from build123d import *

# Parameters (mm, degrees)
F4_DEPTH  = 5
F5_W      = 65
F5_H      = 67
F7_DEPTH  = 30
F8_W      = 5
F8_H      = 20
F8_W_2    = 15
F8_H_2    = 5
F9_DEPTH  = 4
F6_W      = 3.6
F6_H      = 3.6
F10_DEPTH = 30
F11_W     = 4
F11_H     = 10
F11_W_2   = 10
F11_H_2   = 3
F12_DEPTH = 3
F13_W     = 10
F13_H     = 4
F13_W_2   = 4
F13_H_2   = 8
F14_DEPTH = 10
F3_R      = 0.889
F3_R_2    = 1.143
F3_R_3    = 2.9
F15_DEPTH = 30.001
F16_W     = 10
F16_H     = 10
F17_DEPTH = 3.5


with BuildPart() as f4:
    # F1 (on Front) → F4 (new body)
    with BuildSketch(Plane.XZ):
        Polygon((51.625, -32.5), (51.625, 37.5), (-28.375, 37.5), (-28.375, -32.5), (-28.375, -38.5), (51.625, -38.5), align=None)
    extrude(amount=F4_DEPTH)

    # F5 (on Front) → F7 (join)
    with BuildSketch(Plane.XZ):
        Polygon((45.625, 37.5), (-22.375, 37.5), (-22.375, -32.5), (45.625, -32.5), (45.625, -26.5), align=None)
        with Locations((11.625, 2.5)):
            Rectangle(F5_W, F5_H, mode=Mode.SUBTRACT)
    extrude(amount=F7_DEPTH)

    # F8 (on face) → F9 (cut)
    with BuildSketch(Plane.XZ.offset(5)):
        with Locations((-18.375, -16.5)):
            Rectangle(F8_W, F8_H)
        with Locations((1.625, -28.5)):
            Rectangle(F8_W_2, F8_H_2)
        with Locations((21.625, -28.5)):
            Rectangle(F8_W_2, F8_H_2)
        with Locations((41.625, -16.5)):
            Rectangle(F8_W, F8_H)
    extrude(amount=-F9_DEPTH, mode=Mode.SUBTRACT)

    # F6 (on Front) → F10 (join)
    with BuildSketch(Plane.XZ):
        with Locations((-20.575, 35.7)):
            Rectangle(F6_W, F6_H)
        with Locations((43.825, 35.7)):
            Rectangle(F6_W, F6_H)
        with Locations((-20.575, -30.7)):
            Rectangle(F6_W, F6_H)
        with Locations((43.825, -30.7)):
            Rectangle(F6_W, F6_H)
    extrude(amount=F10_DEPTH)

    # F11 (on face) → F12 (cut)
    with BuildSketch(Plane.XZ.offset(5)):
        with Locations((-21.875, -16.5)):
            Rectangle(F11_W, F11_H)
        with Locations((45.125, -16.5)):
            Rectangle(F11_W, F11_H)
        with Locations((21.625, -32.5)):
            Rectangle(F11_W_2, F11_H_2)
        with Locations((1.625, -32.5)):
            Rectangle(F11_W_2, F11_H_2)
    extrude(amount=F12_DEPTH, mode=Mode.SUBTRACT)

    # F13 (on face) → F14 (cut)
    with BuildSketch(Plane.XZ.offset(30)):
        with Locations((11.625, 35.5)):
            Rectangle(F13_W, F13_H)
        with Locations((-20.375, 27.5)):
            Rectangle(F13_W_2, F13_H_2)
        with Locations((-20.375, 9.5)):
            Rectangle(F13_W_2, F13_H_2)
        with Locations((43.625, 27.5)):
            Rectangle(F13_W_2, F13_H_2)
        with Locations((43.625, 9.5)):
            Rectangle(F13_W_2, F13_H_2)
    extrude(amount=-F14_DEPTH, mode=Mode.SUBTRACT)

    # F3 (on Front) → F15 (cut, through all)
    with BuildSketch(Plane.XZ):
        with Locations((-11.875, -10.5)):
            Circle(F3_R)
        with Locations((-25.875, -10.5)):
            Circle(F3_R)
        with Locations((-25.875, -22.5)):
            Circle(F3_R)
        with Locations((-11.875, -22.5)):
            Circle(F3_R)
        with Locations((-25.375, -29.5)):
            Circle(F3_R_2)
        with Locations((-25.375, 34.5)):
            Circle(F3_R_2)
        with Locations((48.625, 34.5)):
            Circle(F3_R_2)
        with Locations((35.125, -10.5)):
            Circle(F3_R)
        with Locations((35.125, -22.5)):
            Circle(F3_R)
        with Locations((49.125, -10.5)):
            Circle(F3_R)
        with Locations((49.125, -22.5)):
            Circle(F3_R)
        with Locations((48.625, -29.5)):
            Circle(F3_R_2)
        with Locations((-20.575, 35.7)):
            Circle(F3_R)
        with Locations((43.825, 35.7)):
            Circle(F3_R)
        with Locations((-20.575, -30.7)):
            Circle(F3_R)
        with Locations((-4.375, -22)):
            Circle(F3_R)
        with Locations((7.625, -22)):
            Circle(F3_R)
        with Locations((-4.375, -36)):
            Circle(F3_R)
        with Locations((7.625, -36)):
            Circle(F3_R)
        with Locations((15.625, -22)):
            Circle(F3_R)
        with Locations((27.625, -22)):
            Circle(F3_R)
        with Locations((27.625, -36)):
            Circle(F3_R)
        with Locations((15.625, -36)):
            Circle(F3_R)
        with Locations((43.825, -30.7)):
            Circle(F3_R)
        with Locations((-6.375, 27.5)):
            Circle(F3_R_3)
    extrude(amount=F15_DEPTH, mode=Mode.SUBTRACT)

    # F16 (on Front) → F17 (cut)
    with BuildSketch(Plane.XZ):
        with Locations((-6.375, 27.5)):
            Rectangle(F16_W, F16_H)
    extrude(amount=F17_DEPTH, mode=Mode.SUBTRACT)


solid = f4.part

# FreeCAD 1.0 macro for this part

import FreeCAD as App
import Part
import Sketcher

V = App.Vector
Q = App.Units.Quantity

doc = App.newDocument("Part")
params = doc.addObject("Spreadsheet::Sheet", "Params")
for row, (alias, value) in enumerate([
    ("sketch1_width", "80 mm"),
    ("sketch1_height", "76 mm"),
    ("pad1_length", "5 mm"),
    ("sketch2_width", "68 mm"),
    ("sketch2_width2", "65 mm"),
    ("sketch2_height", "70 mm"),
    ("sketch2_height2", "67 mm"),
    ("pad2_length", "30 mm"),
    ("sketch3_width", "5 mm"),
    ("sketch3_width2", "15 mm"),
    ("sketch3_height", "20 mm"),
    ("pocket1_length", "4 mm"),
    ("sketch4_width", "3.6 mm"),
    ("pad3_length", "30 mm"),
    ("sketch5_width", "4 mm"),
    ("sketch5_width2", "10 mm"),
    ("sketch5_height", "3 mm"),
    ("pocket2_length", "3 mm"),
    ("sketch6_width", "10 mm"),
    ("sketch6_width2", "4 mm"),
    ("sketch6_height", "8 mm"),
    ("pocket3_length", "10 mm"),
    ("sketch7_diameter", "5.8 mm"),
    ("sketch8_width", "10 mm"),
    ("pocket5_length", "3.5 mm"),
], start=1):
    params.set(f"A{row}", alias)
    params.set(f"B{row}", "=" + value)
    params.setAlias(f"B{row}", alias)

body = doc.addObject("PartDesign::Body", "Body")

# Sketch on XZ plane
sketch1 = body.newObject("Sketcher::SketchObject", "Sketch")
sketch1.AttachmentSupport = (doc.getObject("XZ_Plane"), [""])
sketch1.MapMode = "FlatFace"
sketch1.addGeometry(Part.LineSegment(V(52, 38, 0), V(-28, 38, 0)), False)
sketch1.addGeometry(Part.LineSegment(V(-28, 38, 0), V(-28, -38, 0)), False)
sketch1.addGeometry(Part.LineSegment(V(-28, -38, 0), V(52, -38, 0)), False)
sketch1.addGeometry(Part.LineSegment(V(52, -38, 0), V(52, 38, 0)), False)
sketch1.addConstraint(Sketcher.Constraint("Coincident", 0, 2, 1, 1))
sketch1.addConstraint(Sketcher.Constraint("Coincident", 1, 2, 2, 1))
sketch1.addConstraint(Sketcher.Constraint("Coincident", 2, 2, 3, 1))
sketch1.addConstraint(Sketcher.Constraint("Coincident", 3, 2, 0, 1))
sketch1.addConstraint(Sketcher.Constraint("Horizontal", 0))
sketch1.addConstraint(Sketcher.Constraint("Vertical", 1))
sketch1.addConstraint(Sketcher.Constraint("Horizontal", 2))
sketch1.addConstraint(Sketcher.Constraint("Vertical", 3))
sketch1.addConstraint(Sketcher.Constraint("DistanceX", 0, 2, 0, 1, Q("80 mm")))
sketch1.addConstraint(Sketcher.Constraint("DistanceY", 1, 2, 1, 1, Q("76 mm")))
sketch1.addConstraint(Sketcher.Constraint("DistanceY", -1, 1, 0, 2, Q("37.5 mm")))
sketch1.addConstraint(Sketcher.Constraint("DistanceX", 0, 2, -1, 1, Q("28.375 mm")))
sketch1.setExpression("Constraints[8]", "Params.sketch1_width")
sketch1.setExpression("Constraints[9]", "Params.sketch1_height")
pad1 = body.newObject("PartDesign::Pad", "Pad")
pad1.Profile = sketch1
pad1.setExpression("Length", "Params.pad1_length")

# Sketch on XZ plane
sketch2 = body.newObject("Sketcher::SketchObject", "Sketch001")
sketch2.AttachmentSupport = (doc.getObject("XZ_Plane"), [""])
sketch2.MapMode = "FlatFace"
sketch2.addGeometry(Part.LineSegment(V(46, 38, 0), V(-22, 38, 0)), False)
sketch2.addGeometry(Part.LineSegment(V(-22, 38, 0), V(-22, -32, 0)), False)
sketch2.addGeometry(Part.LineSegment(V(-22, -32, 0), V(46, -32, 0)), False)
sketch2.addGeometry(Part.LineSegment(V(46, -32, 0), V(46, 38, 0)), False)
sketch2.addGeometry(Part.LineSegment(V(44, -31, 0), V(-21, -31, 0)), False)
sketch2.addGeometry(Part.LineSegment(V(-21, -31, 0), V(-21, 36, 0)), False)
sketch2.addGeometry(Part.LineSegment(V(-21, 36, 0), V(44, 36, 0)), False)
sketch2.addGeometry(Part.LineSegment(V(44, 36, 0), V(44, -31, 0)), False)
sketch2.addConstraint(Sketcher.Constraint("Coincident", 0, 2, 1, 1))
sketch2.addConstraint(Sketcher.Constraint("Coincident", 1, 2, 2, 1))
sketch2.addConstraint(Sketcher.Constraint("Coincident", 2, 2, 3, 1))
sketch2.addConstraint(Sketcher.Constraint("Coincident", 3, 2, 0, 1))
sketch2.addConstraint(Sketcher.Constraint("Coincident", 4, 2, 5, 1))
sketch2.addConstraint(Sketcher.Constraint("Coincident", 5, 2, 6, 1))
sketch2.addConstraint(Sketcher.Constraint("Coincident", 6, 2, 7, 1))
sketch2.addConstraint(Sketcher.Constraint("Coincident", 7, 2, 4, 1))
sketch2.addConstraint(Sketcher.Constraint("Horizontal", 0))
sketch2.addConstraint(Sketcher.Constraint("Vertical", 1))
sketch2.addConstraint(Sketcher.Constraint("Horizontal", 2))
sketch2.addConstraint(Sketcher.Constraint("Vertical", 3))
sketch2.addConstraint(Sketcher.Constraint("Horizontal", 4))
sketch2.addConstraint(Sketcher.Constraint("Vertical", 5))
sketch2.addConstraint(Sketcher.Constraint("Horizontal", 6))
sketch2.addConstraint(Sketcher.Constraint("Vertical", 7))
sketch2.addConstraint(Sketcher.Constraint("DistanceX", 0, 2, 0, 1, Q("68 mm")))
sketch2.addConstraint(Sketcher.Constraint("DistanceX", 4, 2, 4, 1, Q("65 mm")))
sketch2.addConstraint(Sketcher.Constraint("DistanceY", 1, 2, 1, 1, Q("70 mm")))
sketch2.addConstraint(Sketcher.Constraint("DistanceY", 5, 1, 5, 2, Q("67 mm")))
sketch2.addConstraint(Sketcher.Constraint("DistanceY", 4, 2, -1, 1, Q("31 mm")))
sketch2.addConstraint(Sketcher.Constraint("DistanceY", -1, 1, 0, 2, Q("37.5 mm")))
sketch2.addConstraint(Sketcher.Constraint("DistanceX", 1, 2, 4, 2, Q("1.5 mm")))
sketch2.addConstraint(Sketcher.Constraint("DistanceX", 0, 2, -1, 1, Q("22.375 mm")))
sketch2.setExpression("Constraints[16]", "Params.sketch2_width")
sketch2.setExpression("Constraints[17]", "Params.sketch2_width2")
sketch2.setExpression("Constraints[18]", "Params.sketch2_height")
sketch2.setExpression("Constraints[19]", "Params.sketch2_height2")
pad2 = body.newObject("PartDesign::Pad", "Pad001")
pad2.Profile = sketch2
pad2.setExpression("Length", "Params.pad2_length")

# Sketch on XZ plane
sketch3 = body.newObject("Sketcher::SketchObject", "Sketch002")
sketch3.AttachmentSupport = (doc.getObject("XZ_Plane"), [""])
sketch3.MapMode = "FlatFace"
sketch3.AttachmentOffset = App.Placement(V(0, 0, 5), App.Rotation())
sketch3.addGeometry(Part.LineSegment(V(-21, -6, 0), V(-21, -26, 0)), False)
sketch3.addGeometry(Part.LineSegment(V(-21, -26, 0), V(-16, -26, 0)), False)
sketch3.addGeometry(Part.LineSegment(V(-16, -26, 0), V(-16, -6, 0)), False)
sketch3.addGeometry(Part.LineSegment(V(-16, -6, 0), V(-21, -6, 0)), False)
sketch3.addGeometry(Part.LineSegment(V(-6, -26, 0), V(-6, -31, 0)), False)
sketch3.addGeometry(Part.LineSegment(V(-6, -31, 0), V(9, -31, 0)), False)
sketch3.addGeometry(Part.LineSegment(V(9, -31, 0), V(9, -26, 0)), False)
sketch3.addGeometry(Part.LineSegment(V(9, -26, 0), V(-6, -26, 0)), False)
sketch3.addGeometry(Part.LineSegment(V(14, -26, 0), V(14, -31, 0)), False)
sketch3.addGeometry(Part.LineSegment(V(14, -31, 0), V(29, -31, 0)), False)
sketch3.addGeometry(Part.LineSegment(V(29, -31, 0), V(29, -26, 0)), False)
sketch3.addGeometry(Part.LineSegment(V(29, -26, 0), V(14, -26, 0)), False)
sketch3.addGeometry(Part.LineSegment(V(39, -6, 0), V(39, -26, 0)), False)
sketch3.addGeometry(Part.LineSegment(V(39, -26, 0), V(44, -26, 0)), False)
sketch3.addGeometry(Part.LineSegment(V(44, -26, 0), V(44, -6, 0)), False)
sketch3.addGeometry(Part.LineSegment(V(44, -6, 0), V(39, -6, 0)), False)
sketch3.addConstraint(Sketcher.Constraint("Coincident", 0, 2, 1, 1))
sketch3.addConstraint(Sketcher.Constraint("Coincident", 1, 2, 2, 1))
sketch3.addConstraint(Sketcher.Constraint("Coincident", 2, 2, 3, 1))
sketch3.addConstraint(Sketcher.Constraint("Coincident", 3, 2, 0, 1))
sketch3.addConstraint(Sketcher.Constraint("Coincident", 4, 2, 5, 1))
sketch3.addConstraint(Sketcher.Constraint("Coincident", 5, 2, 6, 1))
sketch3.addConstraint(Sketcher.Constraint("Coincident", 6, 2, 7, 1))
sketch3.addConstraint(Sketcher.Constraint("Coincident", 7, 2, 4, 1))
sketch3.addConstraint(Sketcher.Constraint("Coincident", 8, 2, 9, 1))
sketch3.addConstraint(Sketcher.Constraint("Coincident", 9, 2, 10, 1))
sketch3.addConstraint(Sketcher.Constraint("Coincident", 10, 2, 11, 1))
sketch3.addConstraint(Sketcher.Constraint("Coincident", 11, 2, 8, 1))
sketch3.addConstraint(Sketcher.Constraint("Coincident", 12, 2, 13, 1))
sketch3.addConstraint(Sketcher.Constraint("Coincident", 13, 2, 14, 1))
sketch3.addConstraint(Sketcher.Constraint("Coincident", 14, 2, 15, 1))
sketch3.addConstraint(Sketcher.Constraint("Coincident", 15, 2, 12, 1))
sketch3.addConstraint(Sketcher.Constraint("Vertical", 0))
sketch3.addConstraint(Sketcher.Constraint("Horizontal", 1))
sketch3.addConstraint(Sketcher.Constraint("Vertical", 2))
sketch3.addConstraint(Sketcher.Constraint("Horizontal", 3))
sketch3.addConstraint(Sketcher.Constraint("Vertical", 4))
sketch3.addConstraint(Sketcher.Constraint("Horizontal", 5))
sketch3.addConstraint(Sketcher.Constraint("Vertical", 6))
sketch3.addConstraint(Sketcher.Constraint("Horizontal", 7))
sketch3.addConstraint(Sketcher.Constraint("Vertical", 8))
sketch3.addConstraint(Sketcher.Constraint("Horizontal", 9))
sketch3.addConstraint(Sketcher.Constraint("Vertical", 10))
sketch3.addConstraint(Sketcher.Constraint("Horizontal", 11))
sketch3.addConstraint(Sketcher.Constraint("Vertical", 12))
sketch3.addConstraint(Sketcher.Constraint("Horizontal", 13))
sketch3.addConstraint(Sketcher.Constraint("Vertical", 14))
sketch3.addConstraint(Sketcher.Constraint("Horizontal", 15))
sketch3.addConstraint(Sketcher.Constraint("Horizontal", 5, 2, 8, 2))
sketch3.addConstraint(Sketcher.Constraint("Horizontal", 7, 2, 10, 2))
sketch3.addConstraint(Sketcher.Constraint("Horizontal", 1, 2, 12, 2))
sketch3.addConstraint(Sketcher.Constraint("Horizontal", 3, 2, 14, 2))
sketch3.addConstraint(Sketcher.Constraint("Equal", 7, 9))
sketch3.addConstraint(Sketcher.Constraint("Equal", 3, 13))
sketch3.addConstraint(Sketcher.Constraint("Equal", 15, 4))
sketch3.addConstraint(Sketcher.Constraint("DistanceX", 1, 1, 1, 2, Q("5 mm")))
sketch3.addConstraint(Sketcher.Constraint("DistanceX", 5, 1, 5, 2, Q("15 mm")))
sketch3.addConstraint(Sketcher.Constraint("DistanceY", 0, 2, 0, 1, Q("20 mm")))
sketch3.addConstraint(Sketcher.Constraint("DistanceY", 4, 2, -1, 1, Q("31 mm")))
sketch3.addConstraint(Sketcher.Constraint("DistanceX", 1, 2, 4, 2, Q("10 mm")))
sketch3.addConstraint(Sketcher.Constraint("DistanceX", 5, 2, 8, 2, Q("5 mm")))
sketch3.addConstraint(Sketcher.Constraint("DistanceX", 10, 2, 12, 2, Q("10 mm")))
sketch3.addConstraint(Sketcher.Constraint("DistanceY", 0, 2, -1, 1, Q("26.5 mm")))
sketch3.addConstraint(Sketcher.Constraint("DistanceX", 0, 2, -1, 1, Q("20.875 mm")))
sketch3.setExpression("Constraints[39]", "Params.sketch3_width")
sketch3.setExpression("Constraints[40]", "Params.sketch3_width2")
sketch3.setExpression("Constraints[41]", "Params.sketch3_height")
pocket1 = body.newObject("PartDesign::Pocket", "Pocket")
pocket1.Profile = sketch3
pocket1.setExpression("Length", "Params.pocket1_length")

# Sketch on XZ plane
sketch4 = body.newObject("Sketcher::SketchObject", "Sketch003")
sketch4.AttachmentSupport = (doc.getObject("XZ_Plane"), [""])
sketch4.MapMode = "FlatFace"
sketch4.addGeometry(Part.LineSegment(V(-22.4, 37.5, 0), V(-22.4, 33.9, 0)), False)
sketch4.addGeometry(Part.LineSegment(V(-22.4, 33.9, 0), V(-18.8, 33.9, 0)), False)
sketch4.addGeometry(Part.LineSegment(V(-18.8, 33.9, 0), V(-18.8, 37.5, 0)), False)
sketch4.addGeometry(Part.LineSegment(V(-18.8, 37.5, 0), V(-22.4, 37.5, 0)), False)
sketch4.addGeometry(Part.LineSegment(V(42, 37.5, 0), V(42, 33.9, 0)), False)
sketch4.addGeometry(Part.LineSegment(V(42, 33.9, 0), V(45.6, 33.9, 0)), False)
sketch4.addGeometry(Part.LineSegment(V(45.6, 33.9, 0), V(45.6, 37.5, 0)), False)
sketch4.addGeometry(Part.LineSegment(V(45.6, 37.5, 0), V(42, 37.5, 0)), False)
sketch4.addGeometry(Part.LineSegment(V(-22.4, -28.9, 0), V(-22.4, -32.5, 0)), False)
sketch4.addGeometry(Part.LineSegment(V(-22.4, -32.5, 0), V(-18.8, -32.5, 0)), False)
sketch4.addGeometry(Part.LineSegment(V(-18.8, -32.5, 0), V(-18.8, -28.9, 0)), False)
sketch4.addGeometry(Part.LineSegment(V(-18.8, -28.9, 0), V(-22.4, -28.9, 0)), False)
sketch4.addGeometry(Part.LineSegment(V(42, -28.9, 0), V(42, -32.5, 0)), False)
sketch4.addGeometry(Part.LineSegment(V(42, -32.5, 0), V(45.6, -32.5, 0)), False)
sketch4.addGeometry(Part.LineSegment(V(45.6, -32.5, 0), V(45.6, -28.9, 0)), False)
sketch4.addGeometry(Part.LineSegment(V(45.6, -28.9, 0), V(42, -28.9, 0)), False)
sketch4.addConstraint(Sketcher.Constraint("Coincident", 0, 2, 1, 1))
sketch4.addConstraint(Sketcher.Constraint("Coincident", 1, 2, 2, 1))
sketch4.addConstraint(Sketcher.Constraint("Coincident", 2, 2, 3, 1))
sketch4.addConstraint(Sketcher.Constraint("Coincident", 3, 2, 0, 1))
sketch4.addConstraint(Sketcher.Constraint("Coincident", 4, 2, 5, 1))
sketch4.addConstraint(Sketcher.Constraint("Coincident", 5, 2, 6, 1))
sketch4.addConstraint(Sketcher.Constraint("Coincident", 6, 2, 7, 1))
sketch4.addConstraint(Sketcher.Constraint("Coincident", 7, 2, 4, 1))
sketch4.addConstraint(Sketcher.Constraint("Coincident", 8, 2, 9, 1))
sketch4.addConstraint(Sketcher.Constraint("Coincident", 9, 2, 10, 1))
sketch4.addConstraint(Sketcher.Constraint("Coincident", 10, 2, 11, 1))
sketch4.addConstraint(Sketcher.Constraint("Coincident", 11, 2, 8, 1))
sketch4.addConstraint(Sketcher.Constraint("Coincident", 12, 2, 13, 1))
sketch4.addConstraint(Sketcher.Constraint("Coincident", 13, 2, 14, 1))
sketch4.addConstraint(Sketcher.Constraint("Coincident", 14, 2, 15, 1))
sketch4.addConstraint(Sketcher.Constraint("Coincident", 15, 2, 12, 1))
sketch4.addConstraint(Sketcher.Constraint("Vertical", 0))
sketch4.addConstraint(Sketcher.Constraint("Horizontal", 1))
sketch4.addConstraint(Sketcher.Constraint("Vertical", 2))
sketch4.addConstraint(Sketcher.Constraint("Horizontal", 3))
sketch4.addConstraint(Sketcher.Constraint("Vertical", 4))
sketch4.addConstraint(Sketcher.Constraint("Horizontal", 5))
sketch4.addConstraint(Sketcher.Constraint("Vertical", 6))
sketch4.addConstraint(Sketcher.Constraint("Horizontal", 7))
sketch4.addConstraint(Sketcher.Constraint("Vertical", 8))
sketch4.addConstraint(Sketcher.Constraint("Horizontal", 9))
sketch4.addConstraint(Sketcher.Constraint("Vertical", 10))
sketch4.addConstraint(Sketcher.Constraint("Horizontal", 11))
sketch4.addConstraint(Sketcher.Constraint("Vertical", 12))
sketch4.addConstraint(Sketcher.Constraint("Horizontal", 13))
sketch4.addConstraint(Sketcher.Constraint("Vertical", 14))
sketch4.addConstraint(Sketcher.Constraint("Horizontal", 15))
sketch4.addConstraint(Sketcher.Constraint("Horizontal", 1, 2, 4, 2))
sketch4.addConstraint(Sketcher.Constraint("Horizontal", 3, 2, 6, 2))
sketch4.addConstraint(Sketcher.Constraint("Horizontal", 9, 2, 12, 2))
sketch4.addConstraint(Sketcher.Constraint("Horizontal", 11, 2, 14, 2))
sketch4.addConstraint(Sketcher.Constraint("Vertical", 3, 2, 8, 2))
sketch4.addConstraint(Sketcher.Constraint("Vertical", 2, 2, 9, 2))
sketch4.addConstraint(Sketcher.Constraint("Vertical", 7, 2, 12, 2))
sketch4.addConstraint(Sketcher.Constraint("Vertical", 6, 2, 13, 2))
sketch4.addConstraint(Sketcher.Constraint("Equal", 3, 5))
sketch4.addConstraint(Sketcher.Constraint("Equal", 15, 0))
sketch4.addConstraint(Sketcher.Constraint("Equal", 6, 8))
sketch4.addConstraint(Sketcher.Constraint("DistanceX", 1, 1, 1, 2, Q("3.6 mm")))
sketch4.addConstraint(Sketcher.Constraint("DistanceX", 0, 2, 5, 2, Q("68 mm")))
sketch4.addConstraint(Sketcher.Constraint("DistanceY", 8, 2, 3, 2, Q("70 mm")))
sketch4.addConstraint(Sketcher.Constraint("DistanceY", -1, 1, 0, 2, Q("33.9 mm")))
sketch4.addConstraint(Sketcher.Constraint("DistanceX", 0, 2, -1, 1, Q("22.375 mm")))
sketch4.setExpression("Constraints[43]", "Params.sketch4_width")
pad3 = body.newObject("PartDesign::Pad", "Pad002")
pad3.Profile = sketch4
pad3.setExpression("Length", "Params.pad3_length")

# Sketch on XZ plane
sketch5 = body.newObject("Sketcher::SketchObject", "Sketch004")
sketch5.AttachmentSupport = (doc.getObject("XZ_Plane"), [""])
sketch5.MapMode = "FlatFace"
sketch5.AttachmentOffset = App.Placement(V(0, 0, 5), App.Rotation())
sketch5.addGeometry(Part.LineSegment(V(-23.9, -11.5, 0), V(-23.9, -21.5, 0)), False)
sketch5.addGeometry(Part.LineSegment(V(-23.9, -21.5, 0), V(-19.9, -21.5, 0)), False)
sketch5.addGeometry(Part.LineSegment(V(-19.9, -21.5, 0), V(-19.9, -11.5, 0)), False)
sketch5.addGeometry(Part.LineSegment(V(-19.9, -11.5, 0), V(-23.9, -11.5, 0)), False)
sketch5.addGeometry(Part.LineSegment(V(43.1, -11.5, 0), V(43.1, -21.5, 0)), False)
sketch5.addGeometry(Part.LineSegment(V(43.1, -21.5, 0), V(47.1, -21.5, 0)), False)
sketch5.addGeometry(Part.LineSegment(V(47.1, -21.5, 0), V(47.1, -11.5, 0)), False)
sketch5.addGeometry(Part.LineSegment(V(47.1, -11.5, 0), V(43.1, -11.5, 0)), False)
sketch5.addGeometry(Part.LineSegment(V(16.6, -31, 0), V(16.6, -34, 0)), False)
sketch5.addGeometry(Part.LineSegment(V(16.6, -34, 0), V(26.6, -34, 0)), False)
sketch5.addGeometry(Part.LineSegment(V(26.6, -34, 0), V(26.6, -31, 0)), False)
sketch5.addGeometry(Part.LineSegment(V(26.6, -31, 0), V(16.6, -31, 0)), False)
sketch5.addGeometry(Part.LineSegment(V(-3.4, -31, 0), V(-3.4, -34, 0)), False)
sketch5.addGeometry(Part.LineSegment(V(-3.4, -34, 0), V(6.6, -34, 0)), False)
sketch5.addGeometry(Part.LineSegment(V(6.6, -34, 0), V(6.6, -31, 0)), False)
sketch5.addGeometry(Part.LineSegment(V(6.6, -31, 0), V(-3.4, -31, 0)), False)
sketch5.addConstraint(Sketcher.Constraint("Coincident", 0, 2, 1, 1))
sketch5.addConstraint(Sketcher.Constraint("Coincident", 1, 2, 2, 1))
sketch5.addConstraint(Sketcher.Constraint("Coincident", 2, 2, 3, 1))
sketch5.addConstraint(Sketcher.Constraint("Coincident", 3, 2, 0, 1))
sketch5.addConstraint(Sketcher.Constraint("Coincident", 4, 2, 5, 1))
sketch5.addConstraint(Sketcher.Constraint("Coincident", 5, 2, 6, 1))
sketch5.addConstraint(Sketcher.Constraint("Coincident", 6, 2, 7, 1))
sketch5.addConstraint(Sketcher.Constraint("Coincident", 7, 2, 4, 1))
sketch5.addConstraint(Sketcher.Constraint("Coincident", 8, 2, 9, 1))
sketch5.addConstraint(Sketcher.Constraint("Coincident", 9, 2, 10, 1))
sketch5.addConstraint(Sketcher.Constraint("Coincident", 10, 2, 11, 1))
sketch5.addConstraint(Sketcher.Constraint("Coincident", 11, 2, 8, 1))
sketch5.addConstraint(Sketcher.Constraint("Coincident", 12, 2, 13, 1))
sketch5.addConstraint(Sketcher.Constraint("Coincident", 13, 2, 14, 1))
sketch5.addConstraint(Sketcher.Constraint("Coincident", 14, 2, 15, 1))
sketch5.addConstraint(Sketcher.Constraint("Coincident", 15, 2, 12, 1))
sketch5.addConstraint(Sketcher.Constraint("Vertical", 0))
sketch5.addConstraint(Sketcher.Constraint("Horizontal", 1))
sketch5.addConstraint(Sketcher.Constraint("Vertical", 2))
sketch5.addConstraint(Sketcher.Constraint("Horizontal", 3))
sketch5.addConstraint(Sketcher.Constraint("Vertical", 4))
sketch5.addConstraint(Sketcher.Constraint("Horizontal", 5))
sketch5.addConstraint(Sketcher.Constraint("Vertical", 6))
sketch5.addConstraint(Sketcher.Constraint("Horizontal", 7))
sketch5.addConstraint(Sketcher.Constraint("Vertical", 8))
sketch5.addConstraint(Sketcher.Constraint("Horizontal", 9))
sketch5.addConstraint(Sketcher.Constraint("Vertical", 10))
sketch5.addConstraint(Sketcher.Constraint("Horizontal", 11))
sketch5.addConstraint(Sketcher.Constraint("Vertical", 12))
sketch5.addConstraint(Sketcher.Constraint("Horizontal", 13))
sketch5.addConstraint(Sketcher.Constraint("Vertical", 14))
sketch5.addConstraint(Sketcher.Constraint("Horizontal", 15))
sketch5.addConstraint(Sketcher.Constraint("Horizontal", 1, 2, 4, 2))
sketch5.addConstraint(Sketcher.Constraint("Horizontal", 3, 2, 6, 2))
sketch5.addConstraint(Sketcher.Constraint("Horizontal", 9, 2, 12, 2))
sketch5.addConstraint(Sketcher.Constraint("Horizontal", 11, 2, 14, 2))
sketch5.addConstraint(Sketcher.Constraint("Equal", 3, 5))
sketch5.addConstraint(Sketcher.Constraint("Equal", 11, 13))
sketch5.addConstraint(Sketcher.Constraint("Equal", 15, 0))
sketch5.addConstraint(Sketcher.Constraint("DistanceX", 1, 1, 1, 2, Q("4 mm")))
sketch5.addConstraint(Sketcher.Constraint("DistanceX", 9, 1, 9, 2, Q("10 mm")))
sketch5.addConstraint(Sketcher.Constraint("DistanceY", 8, 2, 8, 1, Q("3 mm")))
sketch5.addConstraint(Sketcher.Constraint("DistanceY", 8, 2, -1, 1, Q("34 mm")))
sketch5.addConstraint(Sketcher.Constraint("DistanceX", 1, 2, 4, 2, Q("63 mm")))
sketch5.addConstraint(Sketcher.Constraint("DistanceX", 12, 2, 8, 2, Q("20 mm")))
sketch5.addConstraint(Sketcher.Constraint("DistanceY", 0, 2, -1, 1, Q("21.5 mm")))
sketch5.addConstraint(Sketcher.Constraint("DistanceX", 8, 2, 4, 2, Q("26.5 mm")))
sketch5.addConstraint(Sketcher.Constraint("DistanceX", 0, 2, -1, 1, Q("23.875 mm")))
sketch5.setExpression("Constraints[39]", "Params.sketch5_width")
sketch5.setExpression("Constraints[40]", "Params.sketch5_width2")
sketch5.setExpression("Constraints[41]", "Params.sketch5_height")
pocket2 = body.newObject("PartDesign::Pocket", "Pocket001")
pocket2.Profile = sketch5
pocket2.setExpression("Length", "Params.pocket2_length")
pocket2.Reversed = True

# Sketch on XZ plane
sketch6 = body.newObject("Sketcher::SketchObject", "Sketch005")
sketch6.AttachmentSupport = (doc.getObject("XZ_Plane"), [""])
sketch6.MapMode = "FlatFace"
sketch6.AttachmentOffset = App.Placement(V(0, 0, 30), App.Rotation())
sketch6.addGeometry(Part.LineSegment(V(6.6, 37.5, 0), V(6.6, 33.5, 0)), False)
sketch6.addGeometry(Part.LineSegment(V(6.6, 33.5, 0), V(16.6, 33.5, 0)), False)
sketch6.addGeometry(Part.LineSegment(V(16.6, 33.5, 0), V(16.6, 37.5, 0)), False)
sketch6.addGeometry(Part.LineSegment(V(16.6, 37.5, 0), V(6.6, 37.5, 0)), False)
sketch6.addGeometry(Part.LineSegment(V(-22.4, 31.5, 0), V(-22.4, 23.5, 0)), False)
sketch6.addGeometry(Part.LineSegment(V(-22.4, 23.5, 0), V(-18.4, 23.5, 0)), False)
sketch6.addGeometry(Part.LineSegment(V(-18.4, 23.5, 0), V(-18.4, 31.5, 0)), False)
sketch6.addGeometry(Part.LineSegment(V(-18.4, 31.5, 0), V(-22.4, 31.5, 0)), False)
sketch6.addGeometry(Part.LineSegment(V(-22.4, 13.5, 0), V(-22.4, 5.5, 0)), False)
sketch6.addGeometry(Part.LineSegment(V(-22.4, 5.5, 0), V(-18.4, 5.5, 0)), False)
sketch6.addGeometry(Part.LineSegment(V(-18.4, 5.5, 0), V(-18.4, 13.5, 0)), False)
sketch6.addGeometry(Part.LineSegment(V(-18.4, 13.5, 0), V(-22.4, 13.5, 0)), False)
sketch6.addGeometry(Part.LineSegment(V(41.6, 31.5, 0), V(41.6, 23.5, 0)), False)
sketch6.addGeometry(Part.LineSegment(V(41.6, 23.5, 0), V(45.6, 23.5, 0)), False)
sketch6.addGeometry(Part.LineSegment(V(45.6, 23.5, 0), V(45.6, 31.5, 0)), False)
sketch6.addGeometry(Part.LineSegment(V(45.6, 31.5, 0), V(41.6, 31.5, 0)), False)
sketch6.addGeometry(Part.LineSegment(V(41.6, 13.5, 0), V(41.6, 5.5, 0)), False)
sketch6.addGeometry(Part.LineSegment(V(41.6, 5.5, 0), V(45.6, 5.5, 0)), False)
sketch6.addGeometry(Part.LineSegment(V(45.6, 5.5, 0), V(45.6, 13.5, 0)), False)
sketch6.addGeometry(Part.LineSegment(V(45.6, 13.5, 0), V(41.6, 13.5, 0)), False)
sketch6.addConstraint(Sketcher.Constraint("Coincident", 0, 2, 1, 1))
sketch6.addConstraint(Sketcher.Constraint("Coincident", 1, 2, 2, 1))
sketch6.addConstraint(Sketcher.Constraint("Coincident", 2, 2, 3, 1))
sketch6.addConstraint(Sketcher.Constraint("Coincident", 3, 2, 0, 1))
sketch6.addConstraint(Sketcher.Constraint("Coincident", 4, 2, 5, 1))
sketch6.addConstraint(Sketcher.Constraint("Coincident", 5, 2, 6, 1))
sketch6.addConstraint(Sketcher.Constraint("Coincident", 6, 2, 7, 1))
sketch6.addConstraint(Sketcher.Constraint("Coincident", 7, 2, 4, 1))
sketch6.addConstraint(Sketcher.Constraint("Coincident", 8, 2, 9, 1))
sketch6.addConstraint(Sketcher.Constraint("Coincident", 9, 2, 10, 1))
sketch6.addConstraint(Sketcher.Constraint("Coincident", 10, 2, 11, 1))
sketch6.addConstraint(Sketcher.Constraint("Coincident", 11, 2, 8, 1))
sketch6.addConstraint(Sketcher.Constraint("Coincident", 12, 2, 13, 1))
sketch6.addConstraint(Sketcher.Constraint("Coincident", 13, 2, 14, 1))
sketch6.addConstraint(Sketcher.Constraint("Coincident", 14, 2, 15, 1))
sketch6.addConstraint(Sketcher.Constraint("Coincident", 15, 2, 12, 1))
sketch6.addConstraint(Sketcher.Constraint("Coincident", 16, 2, 17, 1))
sketch6.addConstraint(Sketcher.Constraint("Coincident", 17, 2, 18, 1))
sketch6.addConstraint(Sketcher.Constraint("Coincident", 18, 2, 19, 1))
sketch6.addConstraint(Sketcher.Constraint("Coincident", 19, 2, 16, 1))
sketch6.addConstraint(Sketcher.Constraint("Vertical", 0))
sketch6.addConstraint(Sketcher.Constraint("Horizontal", 1))
sketch6.addConstraint(Sketcher.Constraint("Vertical", 2))
sketch6.addConstraint(Sketcher.Constraint("Horizontal", 3))
sketch6.addConstraint(Sketcher.Constraint("Vertical", 4))
sketch6.addConstraint(Sketcher.Constraint("Horizontal", 5))
sketch6.addConstraint(Sketcher.Constraint("Vertical", 6))
sketch6.addConstraint(Sketcher.Constraint("Horizontal", 7))
sketch6.addConstraint(Sketcher.Constraint("Vertical", 8))
sketch6.addConstraint(Sketcher.Constraint("Horizontal", 9))
sketch6.addConstraint(Sketcher.Constraint("Vertical", 10))
sketch6.addConstraint(Sketcher.Constraint("Horizontal", 11))
sketch6.addConstraint(Sketcher.Constraint("Vertical", 12))
sketch6.addConstraint(Sketcher.Constraint("Horizontal", 13))
sketch6.addConstraint(Sketcher.Constraint("Vertical", 14))
sketch6.addConstraint(Sketcher.Constraint("Horizontal", 15))
sketch6.addConstraint(Sketcher.Constraint("Vertical", 16))
sketch6.addConstraint(Sketcher.Constraint("Horizontal", 17))
sketch6.addConstraint(Sketcher.Constraint("Vertical", 18))
sketch6.addConstraint(Sketcher.Constraint("Horizontal", 19))
sketch6.addConstraint(Sketcher.Constraint("Horizontal", 5, 2, 12, 2))
sketch6.addConstraint(Sketcher.Constraint("Horizontal", 7, 2, 14, 2))
sketch6.addConstraint(Sketcher.Constraint("Horizontal", 9, 2, 16, 2))
sketch6.addConstraint(Sketcher.Constraint("Horizontal", 11, 2, 18, 2))
sketch6.addConstraint(Sketcher.Constraint("Vertical", 7, 2, 8, 2))
sketch6.addConstraint(Sketcher.Constraint("Vertical", 6, 2, 9, 2))
sketch6.addConstraint(Sketcher.Constraint("Vertical", 15, 2, 16, 2))
sketch6.addConstraint(Sketcher.Constraint("Vertical", 14, 2, 17, 2))
sketch6.addConstraint(Sketcher.Constraint("Equal", 11, 13))
sketch6.addConstraint(Sketcher.Constraint("Equal", 19, 0))
sketch6.addConstraint(Sketcher.Constraint("Equal", 6, 8))
sketch6.addConstraint(Sketcher.Constraint("DistanceX", 1, 1, 1, 2, Q("10 mm")))
sketch6.addConstraint(Sketcher.Constraint("DistanceX", 5, 1, 5, 2, Q("4 mm")))
sketch6.addConstraint(Sketcher.Constraint("DistanceY", 4, 2, 4, 1, Q("8 mm")))
sketch6.addConstraint(Sketcher.Constraint("DistanceX", 4, 2, 0, 2, Q("29 mm")))
sketch6.addConstraint(Sketcher.Constraint("DistanceY", 4, 2, 0, 2, Q("10 mm")))
sketch6.addConstraint(Sketcher.Constraint("DistanceY", 8, 2, 4, 2, Q("18 mm")))
sketch6.addConstraint(Sketcher.Constraint("DistanceX", 1, 2, 12, 2, Q("25 mm")))
sketch6.addConstraint(Sketcher.Constraint("DistanceY", -1, 1, 0, 2, Q("33.5 mm")))
sketch6.addConstraint(Sketcher.Constraint("DistanceX", -1, 1, 0, 2, Q("6.625 mm")))
sketch6.setExpression("Constraints[51]", "Params.sketch6_width")
sketch6.setExpression("Constraints[52]", "Params.sketch6_width2")
sketch6.setExpression("Constraints[53]", "Params.sketch6_height")
pocket3 = body.newObject("PartDesign::Pocket", "Pocket002")
pocket3.Profile = sketch6
pocket3.setExpression("Length", "Params.pocket3_length")

# Sketch on XZ plane
sketch7 = body.newObject("Sketcher::SketchObject", "Sketch006")
sketch7.AttachmentSupport = (doc.getObject("XZ_Plane"), [""])
sketch7.MapMode = "FlatFace"
sketch7.addGeometry(Part.Circle(V(-11.9, -10.5, 0), V(0, 0, 1), 0.9), False)
sketch7.addGeometry(Part.Circle(V(-25.9, -10.5, 0), V(0, 0, 1), 0.9), False)
sketch7.addGeometry(Part.Circle(V(-25.9, -22.5, 0), V(0, 0, 1), 0.9), False)
sketch7.addGeometry(Part.Circle(V(-11.9, -22.5, 0), V(0, 0, 1), 0.9), False)
sketch7.addGeometry(Part.Circle(V(-25.4, -29.5, 0), V(0, 0, 1), 1.1), False)
sketch7.addGeometry(Part.Circle(V(-25.4, 34.5, 0), V(0, 0, 1), 1.1), False)
sketch7.addGeometry(Part.Circle(V(48.6, 34.5, 0), V(0, 0, 1), 1.1), False)
sketch7.addGeometry(Part.Circle(V(35.1, -10.5, 0), V(0, 0, 1), 0.9), False)
sketch7.addGeometry(Part.Circle(V(35.1, -22.5, 0), V(0, 0, 1), 0.9), False)
sketch7.addGeometry(Part.Circle(V(49.1, -10.5, 0), V(0, 0, 1), 0.9), False)
sketch7.addGeometry(Part.Circle(V(49.1, -22.5, 0), V(0, 0, 1), 0.9), False)
sketch7.addGeometry(Part.Circle(V(48.6, -29.5, 0), V(0, 0, 1), 1.1), False)
sketch7.addGeometry(Part.Circle(V(-20.6, 35.7, 0), V(0, 0, 1), 0.9), False)
sketch7.addGeometry(Part.Circle(V(43.8, 35.7, 0), V(0, 0, 1), 0.9), False)
sketch7.addGeometry(Part.Circle(V(-20.6, -30.7, 0), V(0, 0, 1), 0.9), False)
sketch7.addGeometry(Part.Circle(V(-4.4, -22, 0), V(0, 0, 1), 0.9), False)
sketch7.addGeometry(Part.Circle(V(7.6, -22, 0), V(0, 0, 1), 0.9), False)
sketch7.addGeometry(Part.Circle(V(-4.4, -36, 0), V(0, 0, 1), 0.9), False)
sketch7.addGeometry(Part.Circle(V(7.6, -36, 0), V(0, 0, 1), 0.9), False)
sketch7.addGeometry(Part.Circle(V(15.6, -22, 0), V(0, 0, 1), 0.9), False)
sketch7.addGeometry(Part.Circle(V(27.6, -22, 0), V(0, 0, 1), 0.9), False)
sketch7.addGeometry(Part.Circle(V(27.6, -36, 0), V(0, 0, 1), 0.9), False)
sketch7.addGeometry(Part.Circle(V(15.6, -36, 0), V(0, 0, 1), 0.9), False)
sketch7.addGeometry(Part.Circle(V(43.8, -30.7, 0), V(0, 0, 1), 0.9), False)
sketch7.addGeometry(Part.Circle(V(-6.4, 27.5, 0), V(0, 0, 1), 2.9), False)
sketch7.addConstraint(Sketcher.Constraint("Equal", 0, 1))
sketch7.addConstraint(Sketcher.Constraint("Equal", 1, 2))
sketch7.addConstraint(Sketcher.Constraint("Equal", 2, 3))
sketch7.addConstraint(Sketcher.Constraint("Equal", 4, 5))
sketch7.addConstraint(Sketcher.Constraint("Equal", 5, 6))
sketch7.addConstraint(Sketcher.Constraint("Equal", 3, 7))
sketch7.addConstraint(Sketcher.Constraint("Equal", 7, 8))
sketch7.addConstraint(Sketcher.Constraint("Equal", 8, 9))
sketch7.addConstraint(Sketcher.Constraint("Equal", 9, 10))
sketch7.addConstraint(Sketcher.Constraint("Equal", 6, 11))
sketch7.addConstraint(Sketcher.Constraint("Equal", 10, 12))
sketch7.addConstraint(Sketcher.Constraint("Equal", 12, 13))
sketch7.addConstraint(Sketcher.Constraint("Equal", 13, 14))
sketch7.addConstraint(Sketcher.Constraint("Equal", 14, 15))
sketch7.addConstraint(Sketcher.Constraint("Equal", 15, 16))
sketch7.addConstraint(Sketcher.Constraint("Equal", 16, 17))
sketch7.addConstraint(Sketcher.Constraint("Equal", 17, 18))
sketch7.addConstraint(Sketcher.Constraint("Equal", 18, 19))
sketch7.addConstraint(Sketcher.Constraint("Equal", 19, 20))
sketch7.addConstraint(Sketcher.Constraint("Equal", 20, 21))
sketch7.addConstraint(Sketcher.Constraint("Equal", 21, 22))
sketch7.addConstraint(Sketcher.Constraint("Equal", 22, 23))
sketch7.addConstraint(Sketcher.Constraint("Horizontal", 0, 3, 1, 3))
sketch7.addConstraint(Sketcher.Constraint("Horizontal", 2, 3, 3, 3))
sketch7.addConstraint(Sketcher.Constraint("Horizontal", 5, 3, 6, 3))
sketch7.addConstraint(Sketcher.Constraint("Horizontal", 1, 3, 7, 3))
sketch7.addConstraint(Sketcher.Constraint("Horizontal", 3, 3, 8, 3))
sketch7.addConstraint(Sketcher.Constraint("Horizontal", 7, 3, 9, 3))
sketch7.addConstraint(Sketcher.Constraint("Horizontal", 8, 3, 10, 3))
sketch7.addConstraint(Sketcher.Constraint("Horizontal", 4, 3, 11, 3))
sketch7.addConstraint(Sketcher.Constraint("Horizontal", 12, 3, 13, 3))
sketch7.addConstraint(Sketcher.Constraint("Horizontal", 15, 3, 16, 3))
sketch7.addConstraint(Sketcher.Constraint("Horizontal", 17, 3, 18, 3))
sketch7.addConstraint(Sketcher.Constraint("Horizontal", 16, 3, 19, 3))
sketch7.addConstraint(Sketcher.Constraint("Horizontal", 19, 3, 20, 3))
sketch7.addConstraint(Sketcher.Constraint("Horizontal", 18, 3, 21, 3))
sketch7.addConstraint(Sketcher.Constraint("Horizontal", 21, 3, 22, 3))
sketch7.addConstraint(Sketcher.Constraint("Horizontal", 14, 3, 23, 3))
sketch7.addConstraint(Sketcher.Constraint("Vertical", 1, 3, 2, 3))
sketch7.addConstraint(Sketcher.Constraint("Vertical", 0, 3, 3, 3))
sketch7.addConstraint(Sketcher.Constraint("Vertical", 4, 3, 5, 3))
sketch7.addConstraint(Sketcher.Constraint("Vertical", 7, 3, 8, 3))
sketch7.addConstraint(Sketcher.Constraint("Vertical", 9, 3, 10, 3))
sketch7.addConstraint(Sketcher.Constraint("Vertical", 6, 3, 11, 3))
sketch7.addConstraint(Sketcher.Constraint("Vertical", 12, 3, 14, 3))
sketch7.addConstraint(Sketcher.Constraint("Vertical", 15, 3, 17, 3))
sketch7.addConstraint(Sketcher.Constraint("Vertical", 16, 3, 18, 3))
sketch7.addConstraint(Sketcher.Constraint("Vertical", 20, 3, 21, 3))
sketch7.addConstraint(Sketcher.Constraint("Vertical", 19, 3, 22, 3))
sketch7.addConstraint(Sketcher.Constraint("Vertical", 13, 3, 23, 3))
sketch7.addConstraint(Sketcher.Constraint("Diameter", 24, Q("5.8 mm")))
sketch7.addConstraint(Sketcher.Constraint("Diameter", 0, Q("1.778 mm")))
sketch7.addConstraint(Sketcher.Constraint("Diameter", 4, Q("2.286 mm")))
sketch7.addConstraint(Sketcher.Constraint("DistanceY", 15, 3, -1, 1, Q("22 mm")))
sketch7.addConstraint(Sketcher.Constraint("DistanceY", 17, 3, -1, 1, Q("36 mm")))
sketch7.addConstraint(Sketcher.Constraint("DistanceX", 1, 3, 0, 3, Q("14 mm")))
sketch7.addConstraint(Sketcher.Constraint("DistanceY", 2, 3, 1, 3, Q("12 mm")))
sketch7.addConstraint(Sketcher.Constraint("DistanceY", 4, 3, 2, 3, Q("7 mm")))
sketch7.addConstraint(Sketcher.Constraint("DistanceY", 1, 3, 5, 3, Q("45 mm")))
sketch7.addConstraint(Sketcher.Constraint("DistanceX", 5, 3, 6, 3, Q("74 mm")))
sketch7.addConstraint(Sketcher.Constraint("DistanceX", 0, 3, 7, 3, Q("47 mm")))
sketch7.addConstraint(Sketcher.Constraint("DistanceX", 7, 3, 9, 3, Q("14 mm")))
sketch7.addConstraint(Sketcher.Constraint("DistanceX", 4, 3, 15, 3, Q("21 mm")))
sketch7.addConstraint(Sketcher.Constraint("DistanceX", 15, 3, 16, 3, Q("12 mm")))
sketch7.addConstraint(Sketcher.Constraint("DistanceX", 16, 3, 19, 3, Q("8 mm")))
sketch7.addConstraint(Sketcher.Constraint("DistanceX", 19, 3, 20, 3, Q("12 mm")))
sketch7.addConstraint(Sketcher.Constraint("DistanceX", 5, 3, 24, 3, Q("19 mm")))
sketch7.addConstraint(Sketcher.Constraint("DistanceY", 24, 3, 5, 3, Q("7 mm")))
sketch7.addConstraint(Sketcher.Constraint("DistanceY", 0, 3, -1, 1, Q("10.5 mm")))
sketch7.addConstraint(Sketcher.Constraint("DistanceY", -1, 1, 12, 3, Q("35.7 mm")))
sketch7.addConstraint(Sketcher.Constraint("DistanceY", 14, 3, -1, 1, Q("30.7 mm")))
sketch7.addConstraint(Sketcher.Constraint("DistanceX", 2, 3, 4, 3, Q("0.5 mm")))
sketch7.addConstraint(Sketcher.Constraint("DistanceX", 5, 3, 12, 3, Q("4.8 mm")))
sketch7.addConstraint(Sketcher.Constraint("DistanceX", 13, 3, 6, 3, Q("4.8 mm")))
sketch7.addConstraint(Sketcher.Constraint("DistanceX", 0, 3, -1, 1, Q("11.875 mm")))
sketch7.setExpression("Constraints[50]", "Params.sketch7_diameter")
pocket4 = body.newObject("PartDesign::Pocket", "Pocket003")
pocket4.Profile = sketch7
pocket4.Type = "ThroughAll"
pocket4.Reversed = True

# Sketch on XZ plane
sketch8 = body.newObject("Sketcher::SketchObject", "Sketch007")
sketch8.AttachmentSupport = (doc.getObject("XZ_Plane"), [""])
sketch8.MapMode = "FlatFace"
sketch8.addGeometry(Part.LineSegment(V(-11, 32, 0), V(-11, 22, 0)), False)
sketch8.addGeometry(Part.LineSegment(V(-11, 22, 0), V(-1, 22, 0)), False)
sketch8.addGeometry(Part.LineSegment(V(-1, 22, 0), V(-1, 32, 0)), False)
sketch8.addGeometry(Part.LineSegment(V(-1, 32, 0), V(-11, 32, 0)), False)
sketch8.addConstraint(Sketcher.Constraint("Coincident", 0, 2, 1, 1))
sketch8.addConstraint(Sketcher.Constraint("Coincident", 1, 2, 2, 1))
sketch8.addConstraint(Sketcher.Constraint("Coincident", 2, 2, 3, 1))
sketch8.addConstraint(Sketcher.Constraint("Coincident", 3, 2, 0, 1))
sketch8.addConstraint(Sketcher.Constraint("Vertical", 0))
sketch8.addConstraint(Sketcher.Constraint("Horizontal", 1))
sketch8.addConstraint(Sketcher.Constraint("Vertical", 2))
sketch8.addConstraint(Sketcher.Constraint("Horizontal", 3))
sketch8.addConstraint(Sketcher.Constraint("Equal", 3, 0))
sketch8.addConstraint(Sketcher.Constraint("DistanceX", 1, 1, 1, 2, Q("10 mm")))
sketch8.addConstraint(Sketcher.Constraint("DistanceY", -1, 1, 0, 2, Q("22.5 mm")))
sketch8.addConstraint(Sketcher.Constraint("DistanceX", 0, 2, -1, 1, Q("11.375 mm")))
sketch8.setExpression("Constraints[9]", "Params.sketch8_width")
pocket5 = body.newObject("PartDesign::Pocket", "Pocket004")
pocket5.Profile = sketch8
pocket5.setExpression("Length", "Params.pocket5_length")
pocket5.Reversed = True

doc.recompute()
